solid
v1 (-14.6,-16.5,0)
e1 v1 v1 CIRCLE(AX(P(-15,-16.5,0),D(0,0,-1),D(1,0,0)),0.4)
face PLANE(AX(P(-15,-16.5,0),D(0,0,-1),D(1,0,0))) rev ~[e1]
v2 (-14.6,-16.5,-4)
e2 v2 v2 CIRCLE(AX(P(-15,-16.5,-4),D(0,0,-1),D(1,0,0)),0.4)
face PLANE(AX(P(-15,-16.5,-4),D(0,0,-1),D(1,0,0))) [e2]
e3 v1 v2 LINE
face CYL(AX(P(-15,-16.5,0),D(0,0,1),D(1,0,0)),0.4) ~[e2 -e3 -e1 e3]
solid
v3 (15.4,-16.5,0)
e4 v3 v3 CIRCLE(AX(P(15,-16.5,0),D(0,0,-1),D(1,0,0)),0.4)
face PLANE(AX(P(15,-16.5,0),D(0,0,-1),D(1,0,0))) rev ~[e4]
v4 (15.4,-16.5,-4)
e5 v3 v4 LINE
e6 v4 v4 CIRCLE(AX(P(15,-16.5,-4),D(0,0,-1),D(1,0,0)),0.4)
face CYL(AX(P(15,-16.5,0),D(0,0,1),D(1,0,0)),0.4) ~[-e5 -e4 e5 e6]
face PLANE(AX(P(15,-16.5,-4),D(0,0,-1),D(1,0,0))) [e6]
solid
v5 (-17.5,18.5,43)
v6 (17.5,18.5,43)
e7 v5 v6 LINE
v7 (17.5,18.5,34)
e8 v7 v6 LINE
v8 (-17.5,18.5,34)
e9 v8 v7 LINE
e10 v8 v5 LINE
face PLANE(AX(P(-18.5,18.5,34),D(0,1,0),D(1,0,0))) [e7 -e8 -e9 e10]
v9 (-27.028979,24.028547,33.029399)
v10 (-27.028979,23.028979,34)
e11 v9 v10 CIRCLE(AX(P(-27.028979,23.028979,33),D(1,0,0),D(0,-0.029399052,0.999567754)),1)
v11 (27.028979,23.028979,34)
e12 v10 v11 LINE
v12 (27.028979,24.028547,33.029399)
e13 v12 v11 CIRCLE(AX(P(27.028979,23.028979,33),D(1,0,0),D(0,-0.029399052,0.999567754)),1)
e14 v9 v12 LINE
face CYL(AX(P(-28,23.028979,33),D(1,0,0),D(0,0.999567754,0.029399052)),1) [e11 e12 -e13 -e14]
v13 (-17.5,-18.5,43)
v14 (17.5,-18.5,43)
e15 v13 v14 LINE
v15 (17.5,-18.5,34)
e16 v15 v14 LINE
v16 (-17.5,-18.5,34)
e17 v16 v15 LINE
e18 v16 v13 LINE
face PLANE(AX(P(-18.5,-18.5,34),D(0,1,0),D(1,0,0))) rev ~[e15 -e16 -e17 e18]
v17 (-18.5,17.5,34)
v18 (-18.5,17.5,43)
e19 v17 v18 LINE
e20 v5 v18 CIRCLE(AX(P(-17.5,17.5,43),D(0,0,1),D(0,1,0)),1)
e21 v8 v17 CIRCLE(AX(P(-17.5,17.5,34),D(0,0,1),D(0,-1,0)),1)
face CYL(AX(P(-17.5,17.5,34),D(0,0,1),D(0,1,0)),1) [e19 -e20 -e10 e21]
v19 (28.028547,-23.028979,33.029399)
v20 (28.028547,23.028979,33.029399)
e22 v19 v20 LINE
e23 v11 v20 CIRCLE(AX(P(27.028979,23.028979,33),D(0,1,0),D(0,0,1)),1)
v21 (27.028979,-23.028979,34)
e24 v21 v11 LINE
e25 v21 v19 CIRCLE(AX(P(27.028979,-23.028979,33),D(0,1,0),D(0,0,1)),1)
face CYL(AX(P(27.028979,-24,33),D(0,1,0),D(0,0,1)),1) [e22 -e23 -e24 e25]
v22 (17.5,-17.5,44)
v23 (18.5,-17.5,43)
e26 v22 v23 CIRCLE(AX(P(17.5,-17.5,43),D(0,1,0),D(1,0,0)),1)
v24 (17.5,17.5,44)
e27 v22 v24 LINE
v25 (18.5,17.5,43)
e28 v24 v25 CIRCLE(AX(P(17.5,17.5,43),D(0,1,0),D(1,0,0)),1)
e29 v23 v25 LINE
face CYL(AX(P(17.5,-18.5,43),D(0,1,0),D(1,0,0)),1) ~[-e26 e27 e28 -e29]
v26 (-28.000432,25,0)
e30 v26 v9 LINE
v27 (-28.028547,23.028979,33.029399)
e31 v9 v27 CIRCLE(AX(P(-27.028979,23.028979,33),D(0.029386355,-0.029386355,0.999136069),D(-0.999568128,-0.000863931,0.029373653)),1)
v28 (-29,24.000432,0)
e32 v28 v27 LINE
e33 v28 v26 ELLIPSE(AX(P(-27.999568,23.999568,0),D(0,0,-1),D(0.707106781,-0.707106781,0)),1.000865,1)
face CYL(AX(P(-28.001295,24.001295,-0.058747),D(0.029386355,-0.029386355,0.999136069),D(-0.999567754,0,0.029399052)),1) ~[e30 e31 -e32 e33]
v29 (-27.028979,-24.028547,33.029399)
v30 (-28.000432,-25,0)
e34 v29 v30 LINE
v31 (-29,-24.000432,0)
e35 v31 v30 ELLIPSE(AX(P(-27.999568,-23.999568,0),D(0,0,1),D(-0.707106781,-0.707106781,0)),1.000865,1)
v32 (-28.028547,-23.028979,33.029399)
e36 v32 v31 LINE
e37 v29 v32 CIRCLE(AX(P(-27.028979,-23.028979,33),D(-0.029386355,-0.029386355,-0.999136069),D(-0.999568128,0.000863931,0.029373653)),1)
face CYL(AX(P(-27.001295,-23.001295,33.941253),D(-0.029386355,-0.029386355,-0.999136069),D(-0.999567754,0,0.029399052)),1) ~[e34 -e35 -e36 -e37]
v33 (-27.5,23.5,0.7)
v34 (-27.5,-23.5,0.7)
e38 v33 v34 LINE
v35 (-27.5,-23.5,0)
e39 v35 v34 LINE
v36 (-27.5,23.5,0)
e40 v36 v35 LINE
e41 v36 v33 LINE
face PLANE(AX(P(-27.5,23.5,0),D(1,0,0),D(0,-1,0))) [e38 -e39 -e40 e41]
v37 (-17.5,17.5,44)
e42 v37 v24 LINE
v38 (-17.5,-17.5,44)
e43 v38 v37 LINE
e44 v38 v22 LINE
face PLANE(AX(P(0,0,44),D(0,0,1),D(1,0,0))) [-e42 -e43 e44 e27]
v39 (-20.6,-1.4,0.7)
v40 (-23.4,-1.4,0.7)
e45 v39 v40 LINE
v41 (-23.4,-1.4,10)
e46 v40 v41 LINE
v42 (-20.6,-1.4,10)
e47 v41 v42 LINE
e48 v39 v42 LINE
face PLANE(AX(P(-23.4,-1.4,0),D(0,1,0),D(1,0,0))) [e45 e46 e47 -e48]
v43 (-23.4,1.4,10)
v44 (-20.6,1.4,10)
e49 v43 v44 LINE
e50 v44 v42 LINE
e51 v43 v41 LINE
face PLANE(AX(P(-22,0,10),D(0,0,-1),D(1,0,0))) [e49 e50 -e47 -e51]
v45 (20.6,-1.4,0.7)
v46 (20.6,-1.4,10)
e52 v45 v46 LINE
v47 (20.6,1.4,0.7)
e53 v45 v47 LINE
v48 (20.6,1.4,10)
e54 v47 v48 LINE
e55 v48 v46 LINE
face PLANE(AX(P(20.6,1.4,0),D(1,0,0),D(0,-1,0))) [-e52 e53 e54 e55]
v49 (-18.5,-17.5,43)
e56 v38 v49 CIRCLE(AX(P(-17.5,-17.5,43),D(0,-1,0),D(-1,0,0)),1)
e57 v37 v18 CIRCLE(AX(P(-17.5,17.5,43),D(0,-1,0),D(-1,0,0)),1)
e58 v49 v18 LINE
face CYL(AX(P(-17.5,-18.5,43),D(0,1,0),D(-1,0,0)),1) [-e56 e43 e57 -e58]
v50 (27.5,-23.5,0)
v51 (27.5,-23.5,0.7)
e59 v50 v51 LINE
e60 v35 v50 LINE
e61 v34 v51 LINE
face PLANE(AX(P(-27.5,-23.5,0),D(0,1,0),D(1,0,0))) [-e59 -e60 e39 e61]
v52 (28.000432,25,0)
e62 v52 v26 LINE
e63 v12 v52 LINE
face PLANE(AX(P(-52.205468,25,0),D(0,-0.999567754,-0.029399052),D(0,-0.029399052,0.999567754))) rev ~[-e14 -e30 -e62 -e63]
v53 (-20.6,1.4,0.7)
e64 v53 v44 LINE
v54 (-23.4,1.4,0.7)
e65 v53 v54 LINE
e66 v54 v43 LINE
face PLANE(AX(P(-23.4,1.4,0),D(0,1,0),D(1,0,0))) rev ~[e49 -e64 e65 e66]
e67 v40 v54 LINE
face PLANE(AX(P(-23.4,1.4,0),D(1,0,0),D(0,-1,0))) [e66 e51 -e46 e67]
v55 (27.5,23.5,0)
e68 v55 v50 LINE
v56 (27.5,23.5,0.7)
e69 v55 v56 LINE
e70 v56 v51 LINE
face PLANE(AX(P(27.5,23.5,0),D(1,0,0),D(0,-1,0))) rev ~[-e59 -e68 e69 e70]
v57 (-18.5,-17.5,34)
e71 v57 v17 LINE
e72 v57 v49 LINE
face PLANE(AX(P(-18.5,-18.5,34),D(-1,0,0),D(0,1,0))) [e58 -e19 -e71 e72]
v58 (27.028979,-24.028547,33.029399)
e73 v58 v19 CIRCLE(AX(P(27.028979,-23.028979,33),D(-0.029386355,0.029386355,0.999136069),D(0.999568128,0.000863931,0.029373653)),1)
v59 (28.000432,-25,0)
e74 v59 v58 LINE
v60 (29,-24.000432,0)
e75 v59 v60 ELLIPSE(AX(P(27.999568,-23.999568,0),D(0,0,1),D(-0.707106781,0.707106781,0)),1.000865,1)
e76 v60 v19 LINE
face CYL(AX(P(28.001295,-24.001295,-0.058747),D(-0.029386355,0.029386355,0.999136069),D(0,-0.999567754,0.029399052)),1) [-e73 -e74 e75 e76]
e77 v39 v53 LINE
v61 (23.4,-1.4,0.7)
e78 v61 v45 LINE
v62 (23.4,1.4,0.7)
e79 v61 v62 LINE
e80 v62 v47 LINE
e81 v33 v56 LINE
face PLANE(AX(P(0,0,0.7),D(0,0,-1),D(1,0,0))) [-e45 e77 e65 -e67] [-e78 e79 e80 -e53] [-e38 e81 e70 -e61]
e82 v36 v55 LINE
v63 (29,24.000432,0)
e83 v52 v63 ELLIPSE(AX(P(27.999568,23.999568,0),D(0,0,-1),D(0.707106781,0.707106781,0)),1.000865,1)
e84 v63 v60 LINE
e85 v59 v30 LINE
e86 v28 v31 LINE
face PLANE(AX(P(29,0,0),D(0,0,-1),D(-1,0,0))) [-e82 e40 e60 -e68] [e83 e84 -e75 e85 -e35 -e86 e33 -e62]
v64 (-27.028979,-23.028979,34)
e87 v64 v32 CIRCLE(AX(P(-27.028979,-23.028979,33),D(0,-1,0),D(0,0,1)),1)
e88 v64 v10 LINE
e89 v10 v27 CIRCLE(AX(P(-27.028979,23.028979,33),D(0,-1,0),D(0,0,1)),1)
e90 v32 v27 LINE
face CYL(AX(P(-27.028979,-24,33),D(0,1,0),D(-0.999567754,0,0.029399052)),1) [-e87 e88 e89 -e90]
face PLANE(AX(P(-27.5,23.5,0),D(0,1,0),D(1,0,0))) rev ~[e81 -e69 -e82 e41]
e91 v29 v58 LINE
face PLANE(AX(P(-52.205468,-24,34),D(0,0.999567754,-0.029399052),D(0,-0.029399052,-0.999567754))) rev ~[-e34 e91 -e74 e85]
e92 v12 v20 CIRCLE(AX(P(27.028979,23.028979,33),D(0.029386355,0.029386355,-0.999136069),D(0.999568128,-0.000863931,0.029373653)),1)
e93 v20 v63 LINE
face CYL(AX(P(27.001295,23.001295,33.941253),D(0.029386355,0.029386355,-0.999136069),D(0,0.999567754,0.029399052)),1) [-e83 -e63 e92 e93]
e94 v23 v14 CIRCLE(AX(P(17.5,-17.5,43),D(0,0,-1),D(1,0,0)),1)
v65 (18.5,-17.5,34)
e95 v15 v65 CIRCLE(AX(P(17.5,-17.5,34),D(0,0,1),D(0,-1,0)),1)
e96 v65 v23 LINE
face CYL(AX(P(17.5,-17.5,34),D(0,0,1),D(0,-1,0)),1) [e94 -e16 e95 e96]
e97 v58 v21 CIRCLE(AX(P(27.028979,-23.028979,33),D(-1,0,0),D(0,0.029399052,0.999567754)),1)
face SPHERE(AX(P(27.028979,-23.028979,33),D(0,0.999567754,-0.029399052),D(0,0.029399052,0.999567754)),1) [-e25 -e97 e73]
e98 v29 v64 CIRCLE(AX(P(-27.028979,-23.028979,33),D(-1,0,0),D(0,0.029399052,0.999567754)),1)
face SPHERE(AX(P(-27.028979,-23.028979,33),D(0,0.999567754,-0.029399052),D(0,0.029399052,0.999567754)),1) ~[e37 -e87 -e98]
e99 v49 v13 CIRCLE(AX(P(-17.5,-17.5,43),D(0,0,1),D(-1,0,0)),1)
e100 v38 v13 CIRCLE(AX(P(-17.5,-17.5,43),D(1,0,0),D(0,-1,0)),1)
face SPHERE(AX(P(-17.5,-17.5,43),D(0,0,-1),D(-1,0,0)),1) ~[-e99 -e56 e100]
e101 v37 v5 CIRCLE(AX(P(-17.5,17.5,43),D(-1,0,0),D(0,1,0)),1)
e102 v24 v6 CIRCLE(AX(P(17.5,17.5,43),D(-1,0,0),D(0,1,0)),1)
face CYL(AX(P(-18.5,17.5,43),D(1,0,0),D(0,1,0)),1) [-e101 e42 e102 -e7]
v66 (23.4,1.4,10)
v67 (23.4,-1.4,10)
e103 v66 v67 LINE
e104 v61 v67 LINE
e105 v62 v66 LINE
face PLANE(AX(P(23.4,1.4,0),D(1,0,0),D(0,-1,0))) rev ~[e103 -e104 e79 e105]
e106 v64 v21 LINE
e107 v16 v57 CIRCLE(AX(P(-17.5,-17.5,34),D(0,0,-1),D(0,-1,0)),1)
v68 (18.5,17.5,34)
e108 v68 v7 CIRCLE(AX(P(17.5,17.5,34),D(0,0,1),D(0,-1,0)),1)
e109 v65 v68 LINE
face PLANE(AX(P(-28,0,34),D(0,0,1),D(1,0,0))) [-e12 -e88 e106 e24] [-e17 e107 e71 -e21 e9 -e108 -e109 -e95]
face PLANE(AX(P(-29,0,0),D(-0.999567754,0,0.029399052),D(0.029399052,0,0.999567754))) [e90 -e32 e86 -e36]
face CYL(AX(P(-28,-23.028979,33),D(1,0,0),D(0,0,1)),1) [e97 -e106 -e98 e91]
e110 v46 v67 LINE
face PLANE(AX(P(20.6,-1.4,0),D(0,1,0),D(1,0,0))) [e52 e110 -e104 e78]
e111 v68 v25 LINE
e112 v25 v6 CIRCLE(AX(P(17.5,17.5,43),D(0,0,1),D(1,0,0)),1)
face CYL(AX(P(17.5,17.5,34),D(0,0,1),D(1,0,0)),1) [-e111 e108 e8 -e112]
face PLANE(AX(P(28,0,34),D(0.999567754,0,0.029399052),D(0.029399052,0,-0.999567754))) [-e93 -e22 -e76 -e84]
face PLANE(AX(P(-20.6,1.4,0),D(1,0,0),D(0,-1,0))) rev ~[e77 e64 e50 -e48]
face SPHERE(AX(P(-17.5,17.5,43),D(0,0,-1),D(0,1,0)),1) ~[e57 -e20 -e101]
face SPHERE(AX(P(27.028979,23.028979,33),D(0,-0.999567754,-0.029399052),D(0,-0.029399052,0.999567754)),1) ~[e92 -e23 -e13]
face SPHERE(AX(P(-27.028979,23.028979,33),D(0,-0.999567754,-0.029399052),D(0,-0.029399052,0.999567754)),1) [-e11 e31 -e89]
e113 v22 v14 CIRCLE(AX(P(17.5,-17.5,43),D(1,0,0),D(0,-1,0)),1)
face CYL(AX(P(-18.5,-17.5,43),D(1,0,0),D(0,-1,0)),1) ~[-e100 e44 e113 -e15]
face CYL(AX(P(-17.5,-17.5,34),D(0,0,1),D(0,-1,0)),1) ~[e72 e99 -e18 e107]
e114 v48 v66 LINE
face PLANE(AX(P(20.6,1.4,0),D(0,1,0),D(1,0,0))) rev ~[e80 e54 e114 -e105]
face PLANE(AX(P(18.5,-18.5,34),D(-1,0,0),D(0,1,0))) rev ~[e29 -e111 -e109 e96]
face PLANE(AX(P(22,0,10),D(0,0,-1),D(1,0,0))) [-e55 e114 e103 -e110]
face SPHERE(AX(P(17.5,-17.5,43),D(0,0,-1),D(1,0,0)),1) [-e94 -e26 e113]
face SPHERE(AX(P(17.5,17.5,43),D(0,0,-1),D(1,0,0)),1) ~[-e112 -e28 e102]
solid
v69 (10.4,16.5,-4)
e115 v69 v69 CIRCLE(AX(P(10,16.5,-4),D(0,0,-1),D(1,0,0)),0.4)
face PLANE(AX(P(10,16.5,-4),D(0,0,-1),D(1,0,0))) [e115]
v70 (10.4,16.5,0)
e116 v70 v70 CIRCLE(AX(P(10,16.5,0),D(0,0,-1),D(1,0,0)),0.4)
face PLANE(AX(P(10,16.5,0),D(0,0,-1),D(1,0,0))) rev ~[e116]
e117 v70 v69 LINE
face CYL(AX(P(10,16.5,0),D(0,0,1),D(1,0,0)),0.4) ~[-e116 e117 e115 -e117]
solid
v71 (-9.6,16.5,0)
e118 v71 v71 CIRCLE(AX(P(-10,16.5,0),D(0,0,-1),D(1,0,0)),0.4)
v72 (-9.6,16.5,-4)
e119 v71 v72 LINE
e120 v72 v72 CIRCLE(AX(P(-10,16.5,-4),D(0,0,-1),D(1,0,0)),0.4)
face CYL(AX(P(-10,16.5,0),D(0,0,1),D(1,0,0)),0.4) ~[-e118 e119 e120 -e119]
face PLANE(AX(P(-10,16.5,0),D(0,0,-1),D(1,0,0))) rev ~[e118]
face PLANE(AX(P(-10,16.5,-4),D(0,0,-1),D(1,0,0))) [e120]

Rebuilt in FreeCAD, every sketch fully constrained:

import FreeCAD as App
import Part
import Sketcher

V = App.Vector
Q = App.Units.Quantity


def edges_at(feature, points):
    """Names of the edges that pass closest to the given points."""
    edges = feature.Shape.Edges
    near = lambda p: min(range(len(edges)), key=lambda i: edges[i].distToShape(Part.Vertex(*p))[0])
    return sorted({f"Edge{near(p) + 1}" for p in points})


def add_polygon(sketch, points):
    """Adds a closed chain of lines whose ends are joined by coincident constraints."""
    first, n = sketch.GeometryCount, len(points)
    for a, b in zip(points, points[1:] + points[:1]):
        sketch.addGeometry(Part.LineSegment(App.Vector(*a, 0), App.Vector(*b, 0)), False)
    for i in range(n):
        sketch.addConstraint(Sketcher.Constraint("Coincident", first + i, 2, first + (i + 1) % n, 1))

doc = App.newDocument("Part")
body = doc.addObject("PartDesign::Body", "Body")

# Sketch on XZ plane
sketch1 = doc.addObject("Sketcher::SketchObject", "Sketch")
body.addObject(sketch1)
sketch1.AttachmentSupport = (doc.XZ_Plane, [""])
sketch1.MapMode = "FlatFace"
add_polygon(sketch1, [(-29, 0), (-28, 34), (28, 34), (29, 0)])  # lines 0-3
sketch1.addConstraint(Sketcher.Constraint("Horizontal", 1))
sketch1.addConstraint(Sketcher.Constraint("Horizontal", 3))
sketch1.addConstraint(Sketcher.Constraint("Symmetric", 2, 2, 3, 2, -1, 1))
sketch1.addConstraint(Sketcher.Constraint("Equal", 0, 2))
sketch1.addConstraint(Sketcher.Constraint("DistanceX", 1, 1, 1, 2, Q("56 mm")))
sketch1.addConstraint(Sketcher.Constraint("DistanceX", 3, 2, 3, 1, Q("58 mm")))
sketch1.addConstraint(Sketcher.Constraint("DistanceY", -1, 1, 0, 2, Q("34 mm")))
pad1 = doc.addObject("PartDesign::Pad", "Pad")
body.addObject(pad1)
pad1.Profile = sketch1
pad1.Length = 50
pad1.Midplane = True

# Sketch on YZ plane
sketch2 = doc.addObject("Sketcher::SketchObject", "Sketch001")
body.addObject(sketch2)
sketch2.AttachmentSupport = (doc.YZ_Plane, [""])
sketch2.MapMode = "FlatFace"
add_polygon(sketch2, [(34, 43), (-34, 43), (-34, -9), (34, -9)])  # lines 0-3
add_polygon(sketch2, [(24, 34), (25, 0), (-25, 0), (-24, 34)])  # lines 4-7
sketch2.addConstraint(Sketcher.Constraint("Horizontal", 0))
sketch2.addConstraint(Sketcher.Constraint("Vertical", 1))
sketch2.addConstraint(Sketcher.Constraint("Horizontal", 2))
sketch2.addConstraint(Sketcher.Constraint("Vertical", 3))
sketch2.addConstraint(Sketcher.Constraint("Horizontal", 5))
sketch2.addConstraint(Sketcher.Constraint("Horizontal", 7))
sketch2.addConstraint(Sketcher.Constraint("Symmetric", 4, 2, 5, 2, -1, 1))
sketch2.addConstraint(Sketcher.Constraint("Equal", 4, 6))
sketch2.addConstraint(Sketcher.Constraint("DistanceX", 5, 2, 5, 1, Q("50 mm")))
sketch2.addConstraint(Sketcher.Constraint("DistanceX", 7, 1, 7, 2, Q("48 mm")))
sketch2.addConstraint(Sketcher.Constraint("DistanceY", -1, 1, 6, 2, Q("34 mm")))
sketch2.addConstraint(Sketcher.Constraint("DistanceX", 0, 2, 0, 1, Q("68.758 mm")))
sketch2.addConstraint(Sketcher.Constraint("DistanceY", 1, 2, 1, 1, Q("52.758 mm")))
sketch2.addConstraint(Sketcher.Constraint("DistanceX", 0, 2, -1, 1, Q("34.379 mm")))
sketch2.addConstraint(Sketcher.Constraint("DistanceY", -1, 1, 0, 2, Q("43.379 mm")))
pocket1 = doc.addObject("PartDesign::Pocket", "Pocket")
body.addObject(pocket1)
pocket1.Profile = sketch2
pocket1.Type = "ThroughAll"
pocket1.Midplane = True

# Sketch on XY plane
sketch3 = doc.addObject("Sketcher::SketchObject", "Sketch002")
body.addObject(sketch3)
sketch3.AttachmentSupport = (doc.XY_Plane, [""])
sketch3.MapMode = "FlatFace"
sketch3.AttachmentOffset = App.Placement(V(0, 0, 34), App.Rotation())
add_polygon(sketch3, [(-18, 18), (-18, -18), (18, -18), (18, 18)])  # lines 0-3
sketch3.addConstraint(Sketcher.Constraint("Vertical", 0))
sketch3.addConstraint(Sketcher.Constraint("Horizontal", 1))
sketch3.addConstraint(Sketcher.Constraint("Vertical", 2))
sketch3.addConstraint(Sketcher.Constraint("Horizontal", 3))
sketch3.addConstraint(Sketcher.Constraint("Symmetric", 0, 2, 2, 2, -1, 1))
sketch3.addConstraint(Sketcher.Constraint("Equal", 3, 0))
sketch3.addConstraint(Sketcher.Constraint("DistanceX", 1, 1, 1, 2, Q("37 mm")))
pad2 = doc.addObject("PartDesign::Pad", "Pad001")
body.addObject(pad2)
pad2.Profile = sketch3
pad2.Length = 10

# Sketch on XY plane
sketch4 = doc.addObject("Sketcher::SketchObject", "Sketch003")
body.addObject(sketch4)
sketch4.AttachmentSupport = (doc.XY_Plane, [""])
sketch4.MapMode = "FlatFace"
add_polygon(sketch4, [(20.6, -1.4), (20.6, 1.4), (23.4, 1.4), (23.4, -1.4)])  # lines 0-3
add_polygon(sketch4, [(-23.4, -1.4), (-23.4, 1.4), (-20.6, 1.4), (-20.6, -1.4)])  # lines 4-7
sketch4.addConstraint(Sketcher.Constraint("Vertical", 0))
sketch4.addConstraint(Sketcher.Constraint("Horizontal", 1))
sketch4.addConstraint(Sketcher.Constraint("Vertical", 2))
sketch4.addConstraint(Sketcher.Constraint("Horizontal", 3))
sketch4.addConstraint(Sketcher.Constraint("Vertical", 4))
sketch4.addConstraint(Sketcher.Constraint("Horizontal", 5))
sketch4.addConstraint(Sketcher.Constraint("Vertical", 6))
sketch4.addConstraint(Sketcher.Constraint("Horizontal", 7))
sketch4.addConstraint(Sketcher.Constraint("Symmetric", 2, 2, 4, 2, -1, 1))
sketch4.addConstraint(Sketcher.Constraint("Symmetric", 0, 2, 6, 2, -1, 1))
sketch4.addConstraint(Sketcher.Constraint("Horizontal", 1, 2, 4, 2))
sketch4.addConstraint(Sketcher.Constraint("Equal", 7, 0))
sketch4.addConstraint(Sketcher.Constraint("DistanceX", 1, 1, 1, 2, Q("2.8 mm")))
sketch4.addConstraint(Sketcher.Constraint("DistanceX", 4, 2, 0, 2, Q("44 mm")))
pocket2 = doc.addObject("PartDesign::Pocket", "Pocket001")
body.addObject(pocket2)
pocket2.Profile = sketch4
pocket2.Length = 10
pocket2.Reversed = True

# Sketch on XY plane
sketch5 = doc.addObject("Sketcher::SketchObject", "Sketch004")
body.addObject(sketch5)
sketch5.AttachmentSupport = (doc.XY_Plane, [""])
sketch5.MapMode = "FlatFace"
add_polygon(sketch5, [(-28, -24), (-28, 24), (28, 24), (28, -24)])  # lines 0-3
sketch5.addConstraint(Sketcher.Constraint("Vertical", 0))
sketch5.addConstraint(Sketcher.Constraint("Horizontal", 1))
sketch5.addConstraint(Sketcher.Constraint("Vertical", 2))
sketch5.addConstraint(Sketcher.Constraint("Horizontal", 3))
sketch5.addConstraint(Sketcher.Constraint("Symmetric", 0, 2, 2, 2, -1, 1))
sketch5.addConstraint(Sketcher.Constraint("DistanceX", 1, 1, 1, 2, Q("55 mm")))
sketch5.addConstraint(Sketcher.Constraint("DistanceY", 0, 1, 0, 2, Q("47 mm")))
pocket3 = doc.addObject("PartDesign::Pocket", "Pocket002")
body.addObject(pocket3)
pocket3.Profile = sketch5
pocket3.Length = 0.7
pocket3.Reversed = True
doc.recompute()

fillet = doc.addObject("PartDesign::Fillet", "Fillet")
body.addObject(fillet)
fillet.Base = (pocket3, edges_at(pocket3, [
    (28, 0, 34),
    (-28, 0, 34),
    (0, -24, 34),
    (0, 24, 34),
    (-28.5, 24.5, 17),
    (28.5, 24.5, 17),
    (-28.5, -24.5, 17),
    (28.5, -24.5, 17),
    (18.5, -18.5, 39),
    (18.5, 18.5, 39),
    (-18.5, 18.5, 39),
    (-18.5, -18.5, 39),
    (18.5, 0, 44),
    (0, 18.5, 44),
    (-18.5, 0, 44),
    (0, -18.5, 44),
]))
fillet.Radius = 1
body2 = doc.addObject("PartDesign::Body", "Body001")

# Sketch on XY plane
sketch6 = doc.addObject("Sketcher::SketchObject", "Sketch005")
body2.addObject(sketch6)
sketch6.AttachmentSupport = (doc.getObject("XY_Plane001"), [""])
sketch6.MapMode = "FlatFace"
sketch6.addGeometry(Part.Circle(V(-15, -16.5, 0), V(0, 0, 1), 0.4), False)
sketch6.addConstraint(Sketcher.Constraint("Diameter", 0, Q("0.8 mm")))
sketch6.addConstraint(Sketcher.Constraint("DistanceX", 0, 3, -1, 1, Q("15 mm")))
sketch6.addConstraint(Sketcher.Constraint("DistanceY", 0, 3, -1, 1, Q("16.5 mm")))
pad3 = doc.addObject("PartDesign::Pad", "Pad002")
body2.addObject(pad3)
pad3.Profile = sketch6
pad3.Length = 4
pad3.Reversed = True
body3 = doc.addObject("PartDesign::Body", "Body002")

# Sketch on XY plane
sketch7 = doc.addObject("Sketcher::SketchObject", "Sketch006")
body3.addObject(sketch7)
sketch7.AttachmentSupport = (doc.getObject("XY_Plane002"), [""])
sketch7.MapMode = "FlatFace"
sketch7.addGeometry(Part.Circle(V(15, -16.5, 0), V(0, 0, 1), 0.4), False)
sketch7.addConstraint(Sketcher.Constraint("Diameter", 0, Q("0.8 mm")))
sketch7.addConstraint(Sketcher.Constraint("DistanceX", -1, 1, 0, 3, Q("15 mm")))
sketch7.addConstraint(Sketcher.Constraint("DistanceY", 0, 3, -1, 1, Q("16.5 mm")))
pad4 = doc.addObject("PartDesign::Pad", "Pad003")
body3.addObject(pad4)
pad4.Profile = sketch7
pad4.Length = 4
pad4.Reversed = True
body4 = doc.addObject("PartDesign::Body", "Body003")

# Sketch on XY plane
sketch8 = doc.addObject("Sketcher::SketchObject", "Sketch007")
body4.addObject(sketch8)
sketch8.AttachmentSupport = (doc.getObject("XY_Plane003"), [""])
sketch8.MapMode = "FlatFace"
sketch8.addGeometry(Part.Circle(V(-10, 16.5, 0), V(0, 0, 1), 0.4), False)
sketch8.addConstraint(Sketcher.Constraint("Diameter", 0, Q("0.8 mm")))
sketch8.addConstraint(Sketcher.Constraint("DistanceX", 0, 3, -1, 1, Q("10 mm")))
sketch8.addConstraint(Sketcher.Constraint("DistanceY", -1, 1, 0, 3, Q("16.5 mm")))
pad5 = doc.addObject("PartDesign::Pad", "Pad004")
body4.addObject(pad5)
pad5.Profile = sketch8
pad5.Length = 4
pad5.Reversed = True
body5 = doc.addObject("PartDesign::Body", "Body004")

# Sketch on XY plane
sketch9 = doc.addObject("Sketcher::SketchObject", "Sketch008")
body5.addObject(sketch9)
sketch9.AttachmentSupport = (doc.getObject("XY_Plane004"), [""])
sketch9.MapMode = "FlatFace"
sketch9.addGeometry(Part.Circle(V(10, 16.5, 0), V(0, 0, 1), 0.4), False)
sketch9.addConstraint(Sketcher.Constraint("Diameter", 0, Q("0.8 mm")))
sketch9.addConstraint(Sketcher.Constraint("DistanceX", -1, 1, 0, 3, Q("10 mm")))
sketch9.addConstraint(Sketcher.Constraint("DistanceY", -1, 1, 0, 3, Q("16.5 mm")))
pad6 = doc.addObject("PartDesign::Pad", "Pad005")
body5.addObject(pad6)
pad6.Profile = sketch9
pad6.Length = 4
pad6.Reversed = True

doc.recompute()
